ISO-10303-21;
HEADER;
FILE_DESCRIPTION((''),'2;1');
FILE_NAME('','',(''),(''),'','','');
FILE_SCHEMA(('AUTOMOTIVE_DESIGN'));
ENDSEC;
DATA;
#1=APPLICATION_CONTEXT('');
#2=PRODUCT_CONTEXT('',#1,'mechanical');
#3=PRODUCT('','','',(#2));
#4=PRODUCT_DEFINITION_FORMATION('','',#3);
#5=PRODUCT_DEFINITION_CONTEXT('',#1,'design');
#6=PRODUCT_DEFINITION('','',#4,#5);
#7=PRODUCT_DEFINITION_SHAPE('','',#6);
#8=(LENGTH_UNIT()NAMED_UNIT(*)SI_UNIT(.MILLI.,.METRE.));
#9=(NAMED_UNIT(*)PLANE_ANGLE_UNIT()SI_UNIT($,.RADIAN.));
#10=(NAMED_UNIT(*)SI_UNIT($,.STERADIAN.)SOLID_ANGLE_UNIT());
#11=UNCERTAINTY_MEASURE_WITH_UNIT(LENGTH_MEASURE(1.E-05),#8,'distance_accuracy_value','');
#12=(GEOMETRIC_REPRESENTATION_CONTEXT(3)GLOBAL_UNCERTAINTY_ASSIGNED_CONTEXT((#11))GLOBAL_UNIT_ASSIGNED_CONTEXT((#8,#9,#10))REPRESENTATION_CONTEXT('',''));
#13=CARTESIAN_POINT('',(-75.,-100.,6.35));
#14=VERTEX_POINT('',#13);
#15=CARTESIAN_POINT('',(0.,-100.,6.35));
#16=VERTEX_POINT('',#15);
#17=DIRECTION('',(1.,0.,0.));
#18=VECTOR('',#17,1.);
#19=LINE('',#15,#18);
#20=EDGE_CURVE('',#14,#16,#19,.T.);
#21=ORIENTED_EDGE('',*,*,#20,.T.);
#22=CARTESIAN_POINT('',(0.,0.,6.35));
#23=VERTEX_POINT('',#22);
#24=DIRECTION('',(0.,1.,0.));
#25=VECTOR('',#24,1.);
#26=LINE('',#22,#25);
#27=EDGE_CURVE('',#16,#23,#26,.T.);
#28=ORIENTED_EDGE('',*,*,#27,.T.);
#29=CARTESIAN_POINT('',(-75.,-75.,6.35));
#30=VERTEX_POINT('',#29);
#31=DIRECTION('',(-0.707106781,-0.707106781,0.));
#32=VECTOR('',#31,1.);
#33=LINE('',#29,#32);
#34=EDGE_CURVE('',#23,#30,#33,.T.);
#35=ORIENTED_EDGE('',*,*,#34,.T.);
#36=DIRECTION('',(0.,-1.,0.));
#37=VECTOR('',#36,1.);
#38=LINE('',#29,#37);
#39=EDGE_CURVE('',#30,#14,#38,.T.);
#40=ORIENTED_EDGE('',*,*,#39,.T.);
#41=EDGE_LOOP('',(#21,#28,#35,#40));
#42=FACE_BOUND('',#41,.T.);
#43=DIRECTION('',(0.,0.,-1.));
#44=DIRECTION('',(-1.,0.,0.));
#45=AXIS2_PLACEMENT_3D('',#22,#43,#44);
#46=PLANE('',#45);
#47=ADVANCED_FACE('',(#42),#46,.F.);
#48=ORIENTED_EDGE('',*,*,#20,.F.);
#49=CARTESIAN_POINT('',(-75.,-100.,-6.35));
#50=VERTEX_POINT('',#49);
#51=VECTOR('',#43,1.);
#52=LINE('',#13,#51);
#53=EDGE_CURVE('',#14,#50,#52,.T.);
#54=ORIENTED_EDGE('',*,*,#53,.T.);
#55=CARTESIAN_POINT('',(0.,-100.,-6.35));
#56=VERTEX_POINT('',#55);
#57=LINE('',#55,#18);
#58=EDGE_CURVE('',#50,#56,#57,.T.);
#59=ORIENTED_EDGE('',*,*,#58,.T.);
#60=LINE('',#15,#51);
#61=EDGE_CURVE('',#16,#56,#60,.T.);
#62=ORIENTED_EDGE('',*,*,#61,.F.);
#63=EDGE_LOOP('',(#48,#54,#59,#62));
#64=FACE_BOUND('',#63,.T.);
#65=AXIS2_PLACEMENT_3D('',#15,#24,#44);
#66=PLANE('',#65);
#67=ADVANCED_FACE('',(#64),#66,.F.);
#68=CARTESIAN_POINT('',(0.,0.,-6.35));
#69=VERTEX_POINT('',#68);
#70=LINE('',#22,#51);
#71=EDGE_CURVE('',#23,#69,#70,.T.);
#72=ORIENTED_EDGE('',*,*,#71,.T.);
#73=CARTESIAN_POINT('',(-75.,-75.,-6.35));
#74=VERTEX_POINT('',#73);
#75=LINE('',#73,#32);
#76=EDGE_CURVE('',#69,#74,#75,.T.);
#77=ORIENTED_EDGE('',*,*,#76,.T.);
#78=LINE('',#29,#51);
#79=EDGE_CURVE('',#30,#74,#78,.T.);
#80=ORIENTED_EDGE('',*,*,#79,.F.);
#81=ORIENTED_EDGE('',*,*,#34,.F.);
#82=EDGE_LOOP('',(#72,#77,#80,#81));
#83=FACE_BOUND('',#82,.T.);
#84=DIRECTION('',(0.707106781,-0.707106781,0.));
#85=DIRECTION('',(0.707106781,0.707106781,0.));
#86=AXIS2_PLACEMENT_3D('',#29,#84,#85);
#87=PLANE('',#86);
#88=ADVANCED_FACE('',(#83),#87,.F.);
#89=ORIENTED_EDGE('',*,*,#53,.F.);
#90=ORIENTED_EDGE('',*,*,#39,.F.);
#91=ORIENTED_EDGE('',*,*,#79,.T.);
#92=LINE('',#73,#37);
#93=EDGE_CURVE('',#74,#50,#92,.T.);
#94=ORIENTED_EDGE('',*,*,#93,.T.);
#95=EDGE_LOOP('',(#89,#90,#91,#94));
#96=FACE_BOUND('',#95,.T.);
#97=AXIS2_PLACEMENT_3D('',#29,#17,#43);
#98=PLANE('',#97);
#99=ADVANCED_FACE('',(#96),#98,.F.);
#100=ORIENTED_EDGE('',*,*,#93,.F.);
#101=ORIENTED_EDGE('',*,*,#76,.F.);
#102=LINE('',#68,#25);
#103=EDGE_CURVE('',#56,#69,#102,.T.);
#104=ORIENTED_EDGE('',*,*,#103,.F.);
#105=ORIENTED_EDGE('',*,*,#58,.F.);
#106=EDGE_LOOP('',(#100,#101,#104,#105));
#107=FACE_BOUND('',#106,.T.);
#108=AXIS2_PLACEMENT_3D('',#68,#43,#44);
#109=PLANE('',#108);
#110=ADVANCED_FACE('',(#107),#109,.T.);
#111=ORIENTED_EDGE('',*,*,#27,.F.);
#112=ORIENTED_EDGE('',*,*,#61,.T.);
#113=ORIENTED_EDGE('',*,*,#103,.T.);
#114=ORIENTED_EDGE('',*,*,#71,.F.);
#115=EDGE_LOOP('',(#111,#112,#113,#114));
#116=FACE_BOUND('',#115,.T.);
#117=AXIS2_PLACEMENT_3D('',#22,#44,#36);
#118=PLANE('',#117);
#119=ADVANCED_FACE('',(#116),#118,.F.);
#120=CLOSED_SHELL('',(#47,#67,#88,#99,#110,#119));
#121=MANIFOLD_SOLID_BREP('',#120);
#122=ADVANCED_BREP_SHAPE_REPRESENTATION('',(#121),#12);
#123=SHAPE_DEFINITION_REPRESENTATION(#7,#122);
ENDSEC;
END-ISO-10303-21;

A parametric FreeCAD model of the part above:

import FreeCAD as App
import Part
import Sketcher


def add_polygon(sketch, points):
    """Adds a closed chain of lines whose ends are joined by coincident constraints."""
    first, n = sketch.GeometryCount, len(points)
    for a, b in zip(points, points[1:] + points[:1]):
        sketch.addGeometry(Part.LineSegment(App.Vector(*a, 0), App.Vector(*b, 0)), False)
    for i in range(n):
        sketch.addConstraint(Sketcher.Constraint("Coincident", first + i, 2, first + (i + 1) % n, 1))

doc = App.newDocument("Part")
body = doc.addObject("PartDesign::Body", "Body")

# Sketch on XY plane
sketch1 = doc.addObject("Sketcher::SketchObject", "Sketch")
body.addObject(sketch1)
sketch1.AttachmentSupport = (doc.XY_Plane, [""])
sketch1.MapMode = "FlatFace"
add_polygon(sketch1, [(0, -100), (0, 0), (-75, -75), (-75, -100)])  # lines 0-3
sketch1.addConstraint(Sketcher.Constraint("Vertical", 0))
sketch1.addConstraint(Sketcher.Constraint("Vertical", 2))
sketch1.addConstraint(Sketcher.Constraint("Horizontal", 3))
sketch1.addConstraint(Sketcher.Constraint("Coincident", 0, 2, -1, 1))
sketch1.addConstraint(Sketcher.Constraint("DistanceX", 3, 1, 3, 2, 75.0))
sketch1.addConstraint(Sketcher.Constraint("DistanceY", 0, 1, 0, 2, 100.0))
sketch1.addConstraint(Sketcher.Constraint("DistanceY", 2, 2, 2, 1, 25.0))
pad1 = doc.addObject("PartDesign::Pad", "Pad")
body.addObject(pad1)
pad1.Profile = sketch1
pad1.Length = 12.7
pad1.Midplane = True

doc.recompute()
